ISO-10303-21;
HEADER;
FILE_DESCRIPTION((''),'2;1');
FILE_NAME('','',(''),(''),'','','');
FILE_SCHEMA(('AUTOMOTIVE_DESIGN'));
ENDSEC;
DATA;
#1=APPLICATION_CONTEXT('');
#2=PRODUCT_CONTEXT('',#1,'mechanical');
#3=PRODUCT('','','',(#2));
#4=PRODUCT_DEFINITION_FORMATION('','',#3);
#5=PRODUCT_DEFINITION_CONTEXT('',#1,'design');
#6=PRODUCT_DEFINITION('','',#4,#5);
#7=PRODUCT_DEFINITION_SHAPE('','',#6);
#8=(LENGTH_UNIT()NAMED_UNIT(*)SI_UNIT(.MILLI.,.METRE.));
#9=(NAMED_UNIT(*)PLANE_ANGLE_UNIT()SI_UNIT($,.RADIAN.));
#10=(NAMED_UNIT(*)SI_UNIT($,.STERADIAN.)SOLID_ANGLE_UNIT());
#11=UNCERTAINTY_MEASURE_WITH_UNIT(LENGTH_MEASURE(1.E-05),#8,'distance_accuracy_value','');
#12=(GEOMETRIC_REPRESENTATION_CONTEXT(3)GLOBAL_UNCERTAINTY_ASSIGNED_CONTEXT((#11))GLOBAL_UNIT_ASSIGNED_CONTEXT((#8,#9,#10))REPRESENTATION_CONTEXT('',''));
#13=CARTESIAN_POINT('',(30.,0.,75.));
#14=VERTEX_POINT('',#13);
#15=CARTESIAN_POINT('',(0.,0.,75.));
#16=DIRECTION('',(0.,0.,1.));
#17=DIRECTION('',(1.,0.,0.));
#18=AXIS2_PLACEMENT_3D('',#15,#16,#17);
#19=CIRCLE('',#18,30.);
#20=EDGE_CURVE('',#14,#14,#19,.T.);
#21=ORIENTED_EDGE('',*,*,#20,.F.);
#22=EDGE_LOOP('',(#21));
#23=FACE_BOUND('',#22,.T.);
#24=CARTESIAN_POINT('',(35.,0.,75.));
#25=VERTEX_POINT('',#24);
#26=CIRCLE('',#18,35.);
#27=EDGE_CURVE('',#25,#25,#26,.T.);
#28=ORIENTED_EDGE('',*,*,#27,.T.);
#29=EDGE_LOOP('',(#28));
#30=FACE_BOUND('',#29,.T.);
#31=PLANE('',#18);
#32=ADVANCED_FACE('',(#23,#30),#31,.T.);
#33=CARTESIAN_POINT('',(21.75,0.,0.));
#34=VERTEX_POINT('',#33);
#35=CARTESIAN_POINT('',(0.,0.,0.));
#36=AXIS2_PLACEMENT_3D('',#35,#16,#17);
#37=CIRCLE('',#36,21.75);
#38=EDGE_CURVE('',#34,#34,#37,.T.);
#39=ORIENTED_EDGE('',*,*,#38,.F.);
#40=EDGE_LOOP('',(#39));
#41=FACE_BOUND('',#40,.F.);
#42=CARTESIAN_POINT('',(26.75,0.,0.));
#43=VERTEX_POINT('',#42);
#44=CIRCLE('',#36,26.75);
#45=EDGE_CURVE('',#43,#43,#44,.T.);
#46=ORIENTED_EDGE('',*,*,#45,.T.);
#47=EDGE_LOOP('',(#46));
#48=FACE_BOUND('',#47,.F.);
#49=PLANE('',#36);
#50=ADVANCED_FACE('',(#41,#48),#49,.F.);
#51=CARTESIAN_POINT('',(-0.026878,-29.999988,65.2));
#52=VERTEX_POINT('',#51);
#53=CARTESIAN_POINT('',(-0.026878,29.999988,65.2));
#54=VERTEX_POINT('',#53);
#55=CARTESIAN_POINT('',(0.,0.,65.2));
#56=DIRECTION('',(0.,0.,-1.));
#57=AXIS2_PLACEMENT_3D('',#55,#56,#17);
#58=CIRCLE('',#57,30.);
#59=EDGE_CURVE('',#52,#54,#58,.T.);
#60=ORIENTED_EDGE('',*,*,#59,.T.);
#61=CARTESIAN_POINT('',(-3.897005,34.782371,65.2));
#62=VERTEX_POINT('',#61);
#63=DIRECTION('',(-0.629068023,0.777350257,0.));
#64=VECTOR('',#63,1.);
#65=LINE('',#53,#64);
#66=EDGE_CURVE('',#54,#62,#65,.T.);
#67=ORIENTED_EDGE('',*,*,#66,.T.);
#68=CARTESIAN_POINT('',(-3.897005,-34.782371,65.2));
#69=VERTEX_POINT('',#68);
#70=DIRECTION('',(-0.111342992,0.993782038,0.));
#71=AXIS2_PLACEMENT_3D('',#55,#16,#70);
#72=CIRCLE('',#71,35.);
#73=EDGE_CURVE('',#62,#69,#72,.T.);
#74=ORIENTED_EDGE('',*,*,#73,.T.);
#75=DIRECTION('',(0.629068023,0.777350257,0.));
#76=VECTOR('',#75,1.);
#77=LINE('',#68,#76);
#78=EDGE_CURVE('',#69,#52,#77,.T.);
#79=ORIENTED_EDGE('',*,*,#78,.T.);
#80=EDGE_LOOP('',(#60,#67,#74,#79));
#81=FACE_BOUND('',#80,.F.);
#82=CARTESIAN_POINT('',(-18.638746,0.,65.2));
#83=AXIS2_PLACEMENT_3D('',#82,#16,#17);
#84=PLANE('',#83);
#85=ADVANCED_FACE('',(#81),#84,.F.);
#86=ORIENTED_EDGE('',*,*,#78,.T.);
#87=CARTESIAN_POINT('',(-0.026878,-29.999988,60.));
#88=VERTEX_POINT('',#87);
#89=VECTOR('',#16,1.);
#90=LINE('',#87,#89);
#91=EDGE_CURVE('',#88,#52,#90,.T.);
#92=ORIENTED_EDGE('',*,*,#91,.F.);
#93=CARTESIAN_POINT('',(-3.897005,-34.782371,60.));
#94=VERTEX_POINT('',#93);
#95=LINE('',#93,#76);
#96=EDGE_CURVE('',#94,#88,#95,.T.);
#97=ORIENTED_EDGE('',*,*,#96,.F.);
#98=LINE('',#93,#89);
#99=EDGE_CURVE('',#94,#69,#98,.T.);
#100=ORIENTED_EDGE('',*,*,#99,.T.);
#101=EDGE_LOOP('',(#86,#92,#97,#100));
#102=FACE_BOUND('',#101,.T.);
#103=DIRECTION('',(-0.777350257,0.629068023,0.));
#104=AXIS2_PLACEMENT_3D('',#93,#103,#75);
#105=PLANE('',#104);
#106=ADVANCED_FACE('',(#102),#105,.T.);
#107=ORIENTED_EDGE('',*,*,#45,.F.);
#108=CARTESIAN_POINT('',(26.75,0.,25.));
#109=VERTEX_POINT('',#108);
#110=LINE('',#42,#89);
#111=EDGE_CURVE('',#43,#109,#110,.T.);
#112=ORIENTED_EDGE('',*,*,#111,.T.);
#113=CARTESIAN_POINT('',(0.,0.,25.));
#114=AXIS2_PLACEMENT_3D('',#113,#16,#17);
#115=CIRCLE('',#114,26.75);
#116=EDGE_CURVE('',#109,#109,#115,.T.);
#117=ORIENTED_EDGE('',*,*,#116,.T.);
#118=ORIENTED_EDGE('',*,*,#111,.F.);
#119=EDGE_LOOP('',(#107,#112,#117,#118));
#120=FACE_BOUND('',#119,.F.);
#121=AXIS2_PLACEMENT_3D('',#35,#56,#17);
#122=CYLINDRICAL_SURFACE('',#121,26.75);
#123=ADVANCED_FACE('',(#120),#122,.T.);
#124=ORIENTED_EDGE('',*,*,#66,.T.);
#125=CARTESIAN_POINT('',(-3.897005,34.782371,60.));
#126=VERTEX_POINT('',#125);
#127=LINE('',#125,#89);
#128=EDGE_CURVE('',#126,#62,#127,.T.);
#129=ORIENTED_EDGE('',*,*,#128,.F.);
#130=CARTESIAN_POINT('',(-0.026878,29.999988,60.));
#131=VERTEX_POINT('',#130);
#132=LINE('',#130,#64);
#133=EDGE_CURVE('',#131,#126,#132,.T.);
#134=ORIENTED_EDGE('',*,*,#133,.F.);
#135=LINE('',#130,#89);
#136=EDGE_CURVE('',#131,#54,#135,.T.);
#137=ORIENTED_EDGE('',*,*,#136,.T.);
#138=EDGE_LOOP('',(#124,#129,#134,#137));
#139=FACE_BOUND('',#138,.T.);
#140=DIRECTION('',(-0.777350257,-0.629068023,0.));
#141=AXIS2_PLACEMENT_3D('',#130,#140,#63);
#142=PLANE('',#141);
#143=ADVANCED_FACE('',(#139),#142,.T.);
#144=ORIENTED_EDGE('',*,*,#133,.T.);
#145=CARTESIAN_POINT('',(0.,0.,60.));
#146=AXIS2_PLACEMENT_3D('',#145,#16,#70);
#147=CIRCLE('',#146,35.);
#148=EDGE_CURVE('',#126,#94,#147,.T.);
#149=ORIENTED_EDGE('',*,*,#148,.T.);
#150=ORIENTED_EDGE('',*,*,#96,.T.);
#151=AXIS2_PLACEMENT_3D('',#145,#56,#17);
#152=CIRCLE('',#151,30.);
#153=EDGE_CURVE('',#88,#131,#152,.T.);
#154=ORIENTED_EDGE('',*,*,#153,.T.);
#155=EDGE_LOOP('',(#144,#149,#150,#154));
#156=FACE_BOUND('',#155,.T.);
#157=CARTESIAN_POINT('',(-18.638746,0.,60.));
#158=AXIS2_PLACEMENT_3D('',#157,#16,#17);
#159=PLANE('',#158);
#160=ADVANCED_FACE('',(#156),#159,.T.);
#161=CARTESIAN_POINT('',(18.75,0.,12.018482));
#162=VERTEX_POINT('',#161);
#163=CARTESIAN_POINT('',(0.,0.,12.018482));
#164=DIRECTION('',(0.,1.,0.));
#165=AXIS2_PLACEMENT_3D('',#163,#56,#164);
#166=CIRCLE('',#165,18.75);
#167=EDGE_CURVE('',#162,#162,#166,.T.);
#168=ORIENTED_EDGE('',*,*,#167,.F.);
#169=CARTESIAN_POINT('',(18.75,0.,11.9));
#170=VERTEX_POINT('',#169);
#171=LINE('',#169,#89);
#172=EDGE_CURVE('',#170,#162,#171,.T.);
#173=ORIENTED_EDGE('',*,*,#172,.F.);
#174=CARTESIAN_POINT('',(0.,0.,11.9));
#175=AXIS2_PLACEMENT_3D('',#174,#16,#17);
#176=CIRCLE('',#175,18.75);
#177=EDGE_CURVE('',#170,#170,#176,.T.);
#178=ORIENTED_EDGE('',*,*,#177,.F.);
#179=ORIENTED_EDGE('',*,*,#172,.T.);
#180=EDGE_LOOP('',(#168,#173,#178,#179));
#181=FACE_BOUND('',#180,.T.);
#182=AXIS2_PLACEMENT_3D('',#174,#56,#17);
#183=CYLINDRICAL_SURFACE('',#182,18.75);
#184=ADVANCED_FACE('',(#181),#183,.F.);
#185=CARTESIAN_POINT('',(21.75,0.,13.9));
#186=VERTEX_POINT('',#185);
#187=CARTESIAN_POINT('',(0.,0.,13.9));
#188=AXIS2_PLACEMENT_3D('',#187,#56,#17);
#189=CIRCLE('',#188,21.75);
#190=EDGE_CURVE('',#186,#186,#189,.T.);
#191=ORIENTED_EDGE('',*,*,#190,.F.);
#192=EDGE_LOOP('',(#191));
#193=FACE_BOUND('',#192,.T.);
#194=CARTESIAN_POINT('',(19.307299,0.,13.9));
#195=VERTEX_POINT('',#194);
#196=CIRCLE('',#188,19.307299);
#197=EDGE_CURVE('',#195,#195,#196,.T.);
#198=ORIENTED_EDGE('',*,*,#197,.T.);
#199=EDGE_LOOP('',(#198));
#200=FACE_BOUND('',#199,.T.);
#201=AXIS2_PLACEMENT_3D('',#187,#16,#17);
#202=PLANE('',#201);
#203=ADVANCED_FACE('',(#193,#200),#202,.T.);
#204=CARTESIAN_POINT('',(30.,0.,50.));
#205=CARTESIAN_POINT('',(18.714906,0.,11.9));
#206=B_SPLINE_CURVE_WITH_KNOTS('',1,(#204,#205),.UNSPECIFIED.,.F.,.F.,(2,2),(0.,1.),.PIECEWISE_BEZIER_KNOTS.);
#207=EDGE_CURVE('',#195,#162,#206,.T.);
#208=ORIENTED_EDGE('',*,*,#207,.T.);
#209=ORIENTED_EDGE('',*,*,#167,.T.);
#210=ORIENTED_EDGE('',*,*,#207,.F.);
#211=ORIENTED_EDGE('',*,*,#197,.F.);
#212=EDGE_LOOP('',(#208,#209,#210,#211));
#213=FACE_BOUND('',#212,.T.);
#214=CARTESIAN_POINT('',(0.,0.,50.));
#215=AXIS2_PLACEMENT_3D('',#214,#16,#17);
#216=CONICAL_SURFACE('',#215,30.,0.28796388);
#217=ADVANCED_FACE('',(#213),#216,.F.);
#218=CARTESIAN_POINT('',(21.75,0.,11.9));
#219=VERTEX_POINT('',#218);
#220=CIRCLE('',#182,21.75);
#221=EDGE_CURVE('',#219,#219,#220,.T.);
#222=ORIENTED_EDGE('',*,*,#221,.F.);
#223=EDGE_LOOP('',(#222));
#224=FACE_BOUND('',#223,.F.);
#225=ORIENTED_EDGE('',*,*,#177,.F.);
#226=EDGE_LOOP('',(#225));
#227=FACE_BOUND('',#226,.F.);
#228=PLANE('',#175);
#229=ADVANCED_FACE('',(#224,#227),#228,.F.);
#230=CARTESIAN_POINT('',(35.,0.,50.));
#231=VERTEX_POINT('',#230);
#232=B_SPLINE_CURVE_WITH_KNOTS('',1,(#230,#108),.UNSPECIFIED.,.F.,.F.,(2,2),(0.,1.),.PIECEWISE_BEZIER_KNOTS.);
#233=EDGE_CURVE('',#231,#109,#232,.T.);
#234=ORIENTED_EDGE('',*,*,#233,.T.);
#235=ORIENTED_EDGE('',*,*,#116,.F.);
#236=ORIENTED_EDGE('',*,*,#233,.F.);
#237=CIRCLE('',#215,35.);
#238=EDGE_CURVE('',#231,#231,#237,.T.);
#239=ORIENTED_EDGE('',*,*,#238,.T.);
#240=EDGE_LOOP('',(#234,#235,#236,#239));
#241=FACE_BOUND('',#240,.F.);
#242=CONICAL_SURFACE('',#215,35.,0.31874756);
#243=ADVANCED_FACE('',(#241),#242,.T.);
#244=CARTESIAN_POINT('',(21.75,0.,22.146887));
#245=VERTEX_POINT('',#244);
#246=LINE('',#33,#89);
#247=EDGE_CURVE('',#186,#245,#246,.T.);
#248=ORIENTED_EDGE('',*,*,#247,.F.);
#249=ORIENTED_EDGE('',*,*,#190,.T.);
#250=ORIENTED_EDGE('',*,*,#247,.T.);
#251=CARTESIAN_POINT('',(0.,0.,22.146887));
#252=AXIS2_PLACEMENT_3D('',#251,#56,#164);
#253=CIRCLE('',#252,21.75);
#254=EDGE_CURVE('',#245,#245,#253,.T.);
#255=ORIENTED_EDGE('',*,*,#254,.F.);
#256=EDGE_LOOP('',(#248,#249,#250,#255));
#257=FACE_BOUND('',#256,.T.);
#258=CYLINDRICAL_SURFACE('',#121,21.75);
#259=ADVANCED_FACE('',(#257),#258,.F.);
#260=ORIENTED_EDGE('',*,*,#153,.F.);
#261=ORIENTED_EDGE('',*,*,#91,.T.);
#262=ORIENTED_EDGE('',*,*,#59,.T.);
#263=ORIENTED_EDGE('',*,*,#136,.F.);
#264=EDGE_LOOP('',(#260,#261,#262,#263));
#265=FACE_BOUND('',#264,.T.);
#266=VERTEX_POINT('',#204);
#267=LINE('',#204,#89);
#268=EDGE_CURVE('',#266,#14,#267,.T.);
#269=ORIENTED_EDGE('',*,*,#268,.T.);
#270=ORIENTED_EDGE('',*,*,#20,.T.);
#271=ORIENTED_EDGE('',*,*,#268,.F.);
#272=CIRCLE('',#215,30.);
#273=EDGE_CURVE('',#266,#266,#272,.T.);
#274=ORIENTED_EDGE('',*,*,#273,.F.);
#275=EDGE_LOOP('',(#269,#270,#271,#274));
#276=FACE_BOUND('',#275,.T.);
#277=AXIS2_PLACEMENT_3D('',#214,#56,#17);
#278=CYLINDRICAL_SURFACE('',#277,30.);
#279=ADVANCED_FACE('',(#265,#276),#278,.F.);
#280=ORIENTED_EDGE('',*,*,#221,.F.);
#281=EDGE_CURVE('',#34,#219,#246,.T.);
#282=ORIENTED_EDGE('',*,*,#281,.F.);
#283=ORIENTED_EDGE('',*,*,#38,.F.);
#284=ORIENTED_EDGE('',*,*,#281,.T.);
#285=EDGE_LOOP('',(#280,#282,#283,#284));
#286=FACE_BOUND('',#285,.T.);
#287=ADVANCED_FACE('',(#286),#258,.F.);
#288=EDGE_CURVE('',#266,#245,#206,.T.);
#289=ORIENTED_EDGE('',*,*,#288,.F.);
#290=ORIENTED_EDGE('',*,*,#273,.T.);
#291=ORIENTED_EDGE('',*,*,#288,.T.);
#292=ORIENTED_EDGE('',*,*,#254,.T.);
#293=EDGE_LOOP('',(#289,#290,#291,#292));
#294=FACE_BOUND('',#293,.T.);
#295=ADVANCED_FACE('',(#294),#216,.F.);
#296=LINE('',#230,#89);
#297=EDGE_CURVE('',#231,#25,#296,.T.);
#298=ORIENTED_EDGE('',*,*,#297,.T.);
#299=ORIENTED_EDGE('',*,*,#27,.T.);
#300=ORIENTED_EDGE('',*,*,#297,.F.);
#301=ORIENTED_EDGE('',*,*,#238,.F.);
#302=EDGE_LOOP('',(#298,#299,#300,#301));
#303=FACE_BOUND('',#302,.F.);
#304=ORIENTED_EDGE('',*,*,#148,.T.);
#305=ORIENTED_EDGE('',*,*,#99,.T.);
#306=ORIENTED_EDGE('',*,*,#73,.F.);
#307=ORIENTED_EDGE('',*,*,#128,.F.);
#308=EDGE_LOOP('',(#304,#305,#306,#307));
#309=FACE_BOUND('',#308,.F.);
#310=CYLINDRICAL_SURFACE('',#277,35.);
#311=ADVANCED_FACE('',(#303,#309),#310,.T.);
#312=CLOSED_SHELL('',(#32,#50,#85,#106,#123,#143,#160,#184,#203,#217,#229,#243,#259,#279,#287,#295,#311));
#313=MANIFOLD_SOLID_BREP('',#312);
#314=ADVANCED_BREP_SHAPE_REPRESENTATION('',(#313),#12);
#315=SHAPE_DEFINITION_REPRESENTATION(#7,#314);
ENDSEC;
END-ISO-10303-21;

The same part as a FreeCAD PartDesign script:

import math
import FreeCAD as App
import Part
import Sketcher
from FreeCAD import Vector

doc = App.newDocument("Part")
body = doc.addObject("PartDesign::Body", "Body")

# Sketch on XY plane
sketch1 = body.newObject("Sketcher::SketchObject", "Sketch")
sketch1.AttachmentSupport = (doc.getObject("XY_Plane"), [""])
sketch1.MapMode = "FlatFace"
sketch1.addGeometry(Part.Circle(Vector(0, 0, 0), Vector(0, 0, 1), 27), False)
sketch1.addGeometry(Part.Circle(Vector(0, 0, 0), Vector(0, 0, 1), 22), False)
sketch1.addConstraint(Sketcher.Constraint("Coincident", 0, 3, -1, 1))
sketch1.addConstraint(Sketcher.Constraint("Coincident", 1, 3, -1, 1))
sketch1.addConstraint(Sketcher.Constraint("Diameter", 0, 53.5))
sketch1.addConstraint(Sketcher.Constraint("Diameter", 1, 43.5))
pad1 = body.newObject("PartDesign::Pad", "Pad")
pad1.Profile = sketch1
pad1.Length = 25

# Sketch on XY plane
sketch2 = body.newObject("Sketcher::SketchObject", "Sketch001")
sketch2.AttachmentSupport = (doc.getObject("XY_Plane"), [""])
sketch2.MapMode = "FlatFace"
sketch2.AttachmentOffset = App.Placement(Vector(0, 0, 11.9), App.Rotation())
sketch2.addGeometry(Part.Circle(Vector(0, 0, 0), Vector(0, 0, 1), 23), False)
sketch2.addGeometry(Part.Circle(Vector(0, 0, 0), Vector(0, 0, 1), 19), False)
sketch2.addConstraint(Sketcher.Constraint("Coincident", 0, 3, -1, 1))
sketch2.addConstraint(Sketcher.Constraint("Coincident", 1, 3, -1, 1))
sketch2.addConstraint(Sketcher.Constraint("Diameter", 1, 37.5))
sketch2.addConstraint(Sketcher.Constraint("Diameter", 0, 45.87181))
pad2 = body.newObject("PartDesign::Pad", "Pad001")
pad2.Profile = sketch2
pad2.Length = 2

# Sketch on XY plane
sketch3 = body.newObject("Sketcher::SketchObject", "Sketch002")
sketch3.AttachmentSupport = (doc.getObject("XY_Plane"), [""])
sketch3.MapMode = "FlatFace"
sketch3.AttachmentOffset = App.Placement(Vector(0, 0, 50), App.Rotation())
sketch3.addGeometry(Part.Circle(Vector(0, 0, 0), Vector(0, 0, 1), 35), False)
sketch3.addConstraint(Sketcher.Constraint("Coincident", 0, 3, -1, 1))
sketch3.addConstraint(Sketcher.Constraint("Diameter", 0, 70.0))

# Sketch on XY plane
sketch4 = body.newObject("Sketcher::SketchObject", "Sketch003")
sketch4.AttachmentSupport = (doc.getObject("XY_Plane"), [""])
sketch4.MapMode = "FlatFace"
sketch4.AttachmentOffset = App.Placement(Vector(0, 0, 25), App.Rotation())
sketch4.addGeometry(Part.Circle(Vector(0, 0, 0), Vector(0, 0, 1), 27), False)
sketch4.addConstraint(Sketcher.Constraint("Coincident", 0, 3, -1, 1))
sketch4.addConstraint(Sketcher.Constraint("Diameter", 0, 53.5))

additiveloft = body.newObject("PartDesign::AdditiveLoft", "AdditiveLoft")
additiveloft.Profile = sketch3
additiveloft.Sections = [sketch4]

# Sketch on XY plane
sketch5 = body.newObject("Sketcher::SketchObject", "Sketch004")
sketch5.AttachmentSupport = (doc.getObject("XY_Plane"), [""])
sketch5.MapMode = "FlatFace"
sketch5.AttachmentOffset = App.Placement(Vector(0, 0, 50), App.Rotation())
sketch5.addGeometry(Part.Circle(Vector(0, 0, 0), Vector(0, 0, 1), 30), False)
sketch5.addConstraint(Sketcher.Constraint("Coincident", 0, 3, -1, 1))
sketch5.addConstraint(Sketcher.Constraint("Diameter", 0, 60.0))

# Sketch on XY plane
sketch6 = body.newObject("Sketcher::SketchObject", "Sketch005")
sketch6.AttachmentSupport = (doc.getObject("XY_Plane"), [""])
sketch6.MapMode = "FlatFace"
sketch6.AttachmentOffset = App.Placement(Vector(0, 0, 11.9), App.Rotation())
sketch6.addGeometry(Part.Circle(Vector(0, 0, 0), Vector(0, 0, 1), 19), False)
sketch6.addConstraint(Sketcher.Constraint("Coincident", 0, 3, -1, 1))
sketch6.addConstraint(Sketcher.Constraint("Diameter", 0, 37.429812))

subtractiveloft = body.newObject("PartDesign::SubtractiveLoft", "SubtractiveLoft")
subtractiveloft.Profile = sketch5
subtractiveloft.Sections = [sketch6]

# Sketch on XY plane
sketch7 = body.newObject("Sketcher::SketchObject", "Sketch006")
sketch7.AttachmentSupport = (doc.getObject("XY_Plane"), [""])
sketch7.MapMode = "FlatFace"
sketch7.AttachmentOffset = App.Placement(Vector(0, 0, 50), App.Rotation())
sketch7.addGeometry(Part.Circle(Vector(0, 0, 0), Vector(0, 0, 1), 35), False)
sketch7.addGeometry(Part.Circle(Vector(0, 0, 0), Vector(0, 0, 1), 30), False)
sketch7.addConstraint(Sketcher.Constraint("Coincident", 0, 3, -1, 1))
sketch7.addConstraint(Sketcher.Constraint("Coincident", 1, 3, -1, 1))
sketch7.addConstraint(Sketcher.Constraint("Diameter", 0, 70.0))
sketch7.addConstraint(Sketcher.Constraint("Diameter", 1, 60.0))
pad3 = body.newObject("PartDesign::Pad", "Pad002")
pad3.Profile = sketch7
pad3.Length = 25

# Sketch on XY plane
sketch8 = body.newObject("Sketcher::SketchObject", "Sketch007")
sketch8.AttachmentSupport = (doc.getObject("XY_Plane"), [""])
sketch8.MapMode = "FlatFace"
sketch8.AttachmentOffset = App.Placement(Vector(0, 0, 60), App.Rotation())
sketch8.addGeometry(Part.LineSegment(Vector(0, 30, 0), Vector(-4, 35, 0)), False)
sketch8.addGeometry(Part.ArcOfCircle(Part.Circle(Vector(0, 0, 0), Vector(0, 0, 1), 35), math.radians(96), math.radians(264)), False)
sketch8.addGeometry(Part.LineSegment(Vector(-4, -35, 0), Vector(0, -30, 0)), False)
sketch8.addGeometry(Part.LineSegment(Vector(0, -30, 0), Vector(0, 30, 0)), False)
sketch8.addConstraint(Sketcher.Constraint("Coincident", 0, 2, 1, 1))
sketch8.addConstraint(Sketcher.Constraint("Coincident", 1, 2, 2, 1))
sketch8.addConstraint(Sketcher.Constraint("Coincident", 2, 2, 3, 1))
sketch8.addConstraint(Sketcher.Constraint("Coincident", 3, 2, 0, 1))
sketch8.addConstraint(Sketcher.Constraint("Vertical", 3))
sketch8.addConstraint(Sketcher.Constraint("Coincident", 1, 3, -1, 1))
sketch8.addConstraint(Sketcher.Constraint("Vertical", 0, 2, 1, 2))
sketch8.addConstraint(Sketcher.Constraint("Equal", 0, 2))
sketch8.addConstraint(Sketcher.Constraint("Radius", 1, 35.0))
sketch8.addConstraint(Sketcher.Constraint("Distance", 0, 6.15216))
sketch8.addConstraint(Sketcher.Constraint("DistanceY", 3, 1, 3, 2, 59.999976))
sketch8.addConstraint(Sketcher.Constraint("DistanceY", -1, 1, 0, 2, 34.782371))
pocket1 = body.newObject("PartDesign::Pocket", "Pocket")
pocket1.Profile = sketch8
pocket1.Length = 5.2
pocket1.Reversed = True

doc.recompute()
